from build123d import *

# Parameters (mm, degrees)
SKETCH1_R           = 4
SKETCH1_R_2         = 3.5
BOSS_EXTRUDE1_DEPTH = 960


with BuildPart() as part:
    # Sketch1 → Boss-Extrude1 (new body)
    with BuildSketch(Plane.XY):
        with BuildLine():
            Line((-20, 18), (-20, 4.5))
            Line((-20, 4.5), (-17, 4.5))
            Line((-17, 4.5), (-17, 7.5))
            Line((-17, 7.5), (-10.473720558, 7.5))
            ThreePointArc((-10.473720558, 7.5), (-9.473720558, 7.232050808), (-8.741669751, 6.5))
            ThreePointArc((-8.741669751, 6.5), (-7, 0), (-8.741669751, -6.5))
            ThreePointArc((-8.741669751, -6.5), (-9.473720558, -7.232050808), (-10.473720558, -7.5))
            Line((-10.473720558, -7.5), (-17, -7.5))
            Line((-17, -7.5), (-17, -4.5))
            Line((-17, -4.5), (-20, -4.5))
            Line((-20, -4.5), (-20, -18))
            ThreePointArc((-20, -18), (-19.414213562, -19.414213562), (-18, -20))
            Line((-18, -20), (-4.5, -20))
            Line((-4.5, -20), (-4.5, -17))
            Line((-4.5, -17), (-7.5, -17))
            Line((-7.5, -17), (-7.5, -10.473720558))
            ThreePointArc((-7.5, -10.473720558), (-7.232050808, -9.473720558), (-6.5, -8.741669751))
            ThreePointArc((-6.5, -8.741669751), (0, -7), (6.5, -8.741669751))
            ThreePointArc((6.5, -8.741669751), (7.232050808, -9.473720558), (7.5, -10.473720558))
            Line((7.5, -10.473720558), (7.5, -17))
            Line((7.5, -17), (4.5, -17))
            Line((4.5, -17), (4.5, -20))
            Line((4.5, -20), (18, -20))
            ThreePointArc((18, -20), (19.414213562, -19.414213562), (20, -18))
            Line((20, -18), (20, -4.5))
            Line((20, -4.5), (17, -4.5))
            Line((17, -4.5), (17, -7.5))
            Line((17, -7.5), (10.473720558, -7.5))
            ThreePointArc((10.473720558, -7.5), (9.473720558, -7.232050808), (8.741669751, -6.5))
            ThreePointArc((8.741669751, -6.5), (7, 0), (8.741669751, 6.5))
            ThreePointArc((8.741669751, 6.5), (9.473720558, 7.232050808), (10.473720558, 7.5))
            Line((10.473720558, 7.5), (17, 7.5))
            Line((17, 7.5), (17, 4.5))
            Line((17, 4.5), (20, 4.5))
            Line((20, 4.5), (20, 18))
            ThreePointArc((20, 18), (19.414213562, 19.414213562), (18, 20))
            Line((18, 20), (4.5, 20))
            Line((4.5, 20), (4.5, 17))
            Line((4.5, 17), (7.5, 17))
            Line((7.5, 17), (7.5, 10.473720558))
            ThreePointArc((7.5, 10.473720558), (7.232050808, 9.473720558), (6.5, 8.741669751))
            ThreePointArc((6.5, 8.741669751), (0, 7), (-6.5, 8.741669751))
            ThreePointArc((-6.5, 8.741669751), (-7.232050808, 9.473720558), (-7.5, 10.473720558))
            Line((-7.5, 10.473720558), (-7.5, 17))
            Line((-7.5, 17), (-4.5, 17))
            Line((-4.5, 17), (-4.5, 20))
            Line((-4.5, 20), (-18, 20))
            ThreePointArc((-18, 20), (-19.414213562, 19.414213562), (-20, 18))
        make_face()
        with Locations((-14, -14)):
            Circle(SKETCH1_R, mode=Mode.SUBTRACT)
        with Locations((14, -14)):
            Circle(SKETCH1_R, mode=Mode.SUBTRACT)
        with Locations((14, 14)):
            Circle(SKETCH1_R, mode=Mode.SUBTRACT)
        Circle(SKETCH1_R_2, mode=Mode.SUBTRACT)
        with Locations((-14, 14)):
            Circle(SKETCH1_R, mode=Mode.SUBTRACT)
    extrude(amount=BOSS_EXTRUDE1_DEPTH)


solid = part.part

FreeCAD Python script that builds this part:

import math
import FreeCAD as App
import Part
import Sketcher
Q = App.Units.Quantity

doc = App.newDocument("Part")
body = doc.addObject("PartDesign::Body", "Body")

# Sketch on XY plane
sketch1 = body.newObject("Sketcher::SketchObject", "Sketch")
sketch1.AttachmentSupport = (doc.getObject("XY_Plane"), [""])
sketch1.MapMode = "FlatFace"
sketch1.addGeometry([
    Part.LineSegment(App.Vector(-20, 18, 0), App.Vector(-20, 4.5, 0)),  # 0
    Part.LineSegment(App.Vector(-20, 4.5, 0), App.Vector(-17, 4.5, 0)),  # 1
    Part.LineSegment(App.Vector(-17, 4.5, 0), App.Vector(-17, 7.5, 0)),  # 2
    Part.LineSegment(App.Vector(-17, 7.5, 0), App.Vector(-10.5, 7.5, 0)),  # 3
    Part.ArcOfCircle(Part.Circle(App.Vector(-10.5, 5.5, 0), App.Vector(0, 0, 1), 2), math.radians(30), math.radians(90)),  # 4
    Part.ArcOfCircle(Part.Circle(App.Vector(-20, 0, 0), App.Vector(0, 0, 1), 13), math.radians(-30), math.radians(30)),  # 5
    Part.ArcOfCircle(Part.Circle(App.Vector(-10.5, -5.5, 0), App.Vector(0, 0, 1), 2), math.radians(-90), math.radians(-30)),  # 6
    Part.LineSegment(App.Vector(-10.5, -7.5, 0), App.Vector(-17, -7.5, 0)),  # 7
    Part.LineSegment(App.Vector(-17, -7.5, 0), App.Vector(-17, -4.5, 0)),  # 8
    Part.LineSegment(App.Vector(-17, -4.5, 0), App.Vector(-20, -4.5, 0)),  # 9
    Part.LineSegment(App.Vector(-20, -4.5, 0), App.Vector(-20, -18, 0)),  # 10
    Part.ArcOfCircle(Part.Circle(App.Vector(-18, -18, 0), App.Vector(0, 0, 1), 2), math.radians(-180), math.radians(-90)),  # 11
    Part.LineSegment(App.Vector(-18, -20, 0), App.Vector(-4.5, -20, 0)),  # 12
    Part.LineSegment(App.Vector(-4.5, -20, 0), App.Vector(-4.5, -17, 0)),  # 13
    Part.LineSegment(App.Vector(-4.5, -17, 0), App.Vector(-7.5, -17, 0)),  # 14
    Part.LineSegment(App.Vector(-7.5, -17, 0), App.Vector(-7.5, -10.5, 0)),  # 15
    Part.ArcOfCircle(Part.Circle(App.Vector(-5.5, -10.5, 0), App.Vector(0, 0, 1), 2), math.radians(120), math.radians(180)),  # 16
    Part.ArcOfCircle(Part.Circle(App.Vector(0, -20, 0), App.Vector(0, 0, 1), 13), math.radians(60), math.radians(120)),  # 17
    Part.ArcOfCircle(Part.Circle(App.Vector(5.5, -10.5, 0), App.Vector(0, 0, 1), 2), math.radians(0), math.radians(60)),  # 18
    Part.LineSegment(App.Vector(7.5, -10.5, 0), App.Vector(7.5, -17, 0)),  # 19
    Part.LineSegment(App.Vector(7.5, -17, 0), App.Vector(4.5, -17, 0)),  # 20
    Part.LineSegment(App.Vector(4.5, -17, 0), App.Vector(4.5, -20, 0)),  # 21
    Part.LineSegment(App.Vector(4.5, -20, 0), App.Vector(18, -20, 0)),  # 22
    Part.ArcOfCircle(Part.Circle(App.Vector(18, -18, 0), App.Vector(0, 0, 1), 2), math.radians(-90), math.radians(0)),  # 23
    Part.LineSegment(App.Vector(20, -18, 0), App.Vector(20, -4.5, 0)),  # 24
    Part.LineSegment(App.Vector(20, -4.5, 0), App.Vector(17, -4.5, 0)),  # 25
    Part.LineSegment(App.Vector(17, -4.5, 0), App.Vector(17, -7.5, 0)),  # 26
    Part.LineSegment(App.Vector(17, -7.5, 0), App.Vector(10.5, -7.5, 0)),  # 27
    Part.ArcOfCircle(Part.Circle(App.Vector(10.5, -5.5, 0), App.Vector(0, 0, 1), 2), math.radians(-150), math.radians(-90)),  # 28
    Part.ArcOfCircle(Part.Circle(App.Vector(20, 0, 0), App.Vector(0, 0, 1), 13), math.radians(150), math.radians(210)),  # 29
    Part.ArcOfCircle(Part.Circle(App.Vector(10.5, 5.5, 0), App.Vector(0, 0, 1), 2), math.radians(90), math.radians(150)),  # 30
    Part.LineSegment(App.Vector(10.5, 7.5, 0), App.Vector(17, 7.5, 0)),  # 31
    Part.LineSegment(App.Vector(17, 7.5, 0), App.Vector(17, 4.5, 0)),  # 32
    Part.LineSegment(App.Vector(17, 4.5, 0), App.Vector(20, 4.5, 0)),  # 33
    Part.LineSegment(App.Vector(20, 4.5, 0), App.Vector(20, 18, 0)),  # 34
    Part.ArcOfCircle(Part.Circle(App.Vector(18, 18, 0), App.Vector(0, 0, 1), 2), math.radians(0), math.radians(90)),  # 35
    Part.LineSegment(App.Vector(18, 20, 0), App.Vector(4.5, 20, 0)),  # 36
    Part.LineSegment(App.Vector(4.5, 20, 0), App.Vector(4.5, 17, 0)),  # 37
    Part.LineSegment(App.Vector(4.5, 17, 0), App.Vector(7.5, 17, 0)),  # 38
    Part.LineSegment(App.Vector(7.5, 17, 0), App.Vector(7.5, 10.5, 0)),  # 39
    Part.ArcOfCircle(Part.Circle(App.Vector(5.5, 10.5, 0), App.Vector(0, 0, 1), 2), math.radians(-60), math.radians(0)),  # 40
    Part.ArcOfCircle(Part.Circle(App.Vector(0, 20, 0), App.Vector(0, 0, 1), 13), math.radians(-120), math.radians(-60)),  # 41
    Part.ArcOfCircle(Part.Circle(App.Vector(-5.5, 10.5, 0), App.Vector(0, 0, 1), 2), math.radians(180), math.radians(240)),  # 42
    Part.LineSegment(App.Vector(-7.5, 10.5, 0), App.Vector(-7.5, 17, 0)),  # 43
    Part.LineSegment(App.Vector(-7.5, 17, 0), App.Vector(-4.5, 17, 0)),  # 44
    Part.LineSegment(App.Vector(-4.5, 17, 0), App.Vector(-4.5, 20, 0)),  # 45
    Part.LineSegment(App.Vector(-4.5, 20, 0), App.Vector(-18, 20, 0)),  # 46
    Part.ArcOfCircle(Part.Circle(App.Vector(-18, 18, 0), App.Vector(0, 0, 1), 2), math.radians(90), math.radians(180)),  # 47
    Part.Circle(App.Vector(-14, -14, 0), App.Vector(0, 0, 1), 4),  # 48
    Part.Circle(App.Vector(14, -14, 0), App.Vector(0, 0, 1), 4),  # 49
    Part.Circle(App.Vector(-14, 14, 0), App.Vector(0, 0, 1), 4),  # 50
    Part.Circle(App.Vector(0, 0, 0), App.Vector(0, 0, 1), 3.5),  # 51
    Part.Circle(App.Vector(14, 14, 0), App.Vector(0, 0, 1), 4),  # 52
], False)
sketch1.addConstraint([
    Sketcher.Constraint("Coincident", 0, 2, 1, 1),
    Sketcher.Constraint("Coincident", 1, 2, 2, 1),
    Sketcher.Constraint("Coincident", 2, 2, 3, 1),
    Sketcher.Constraint("Tangent", 3, 2, 4, 2),
    Sketcher.Constraint("Tangent", 4, 1, 5, 2),
    Sketcher.Constraint("Tangent", 5, 1, 6, 2),
    Sketcher.Constraint("Tangent", 6, 1, 7, 1),
    Sketcher.Constraint("Coincident", 7, 2, 8, 1),
    Sketcher.Constraint("Coincident", 8, 2, 9, 1),
    Sketcher.Constraint("Coincident", 9, 2, 10, 1),
    Sketcher.Constraint("Tangent", 10, 2, 11, 1),
    Sketcher.Constraint("Tangent", 11, 2, 12, 1),
    Sketcher.Constraint("Coincident", 12, 2, 13, 1),
    Sketcher.Constraint("Coincident", 13, 2, 14, 1),
    Sketcher.Constraint("Coincident", 14, 2, 15, 1),
    Sketcher.Constraint("Tangent", 15, 2, 16, 2),
    Sketcher.Constraint("Tangent", 16, 1, 17, 2),
    Sketcher.Constraint("Tangent", 17, 1, 18, 2),
    Sketcher.Constraint("Tangent", 18, 1, 19, 1),
    Sketcher.Constraint("Coincident", 19, 2, 20, 1),
    Sketcher.Constraint("Coincident", 20, 2, 21, 1),
    Sketcher.Constraint("Coincident", 21, 2, 22, 1),
    Sketcher.Constraint("Tangent", 22, 2, 23, 1),
    Sketcher.Constraint("Tangent", 23, 2, 24, 1),
    Sketcher.Constraint("Coincident", 24, 2, 25, 1),
    Sketcher.Constraint("Coincident", 25, 2, 26, 1),
    Sketcher.Constraint("Coincident", 26, 2, 27, 1),
    Sketcher.Constraint("Tangent", 27, 2, 28, 2),
    Sketcher.Constraint("Tangent", 28, 1, 29, 2),
    Sketcher.Constraint("Tangent", 29, 1, 30, 2),
    Sketcher.Constraint("Tangent", 30, 1, 31, 1),
    Sketcher.Constraint("Coincident", 31, 2, 32, 1),
    Sketcher.Constraint("Coincident", 32, 2, 33, 1),
    Sketcher.Constraint("Coincident", 33, 2, 34, 1),
    Sketcher.Constraint("Tangent", 34, 2, 35, 1),
    Sketcher.Constraint("Tangent", 35, 2, 36, 1),
    Sketcher.Constraint("Coincident", 36, 2, 37, 1),
    Sketcher.Constraint("Coincident", 37, 2, 38, 1),
    Sketcher.Constraint("Coincident", 38, 2, 39, 1),
    Sketcher.Constraint("Tangent", 39, 2, 40, 2),
    Sketcher.Constraint("Tangent", 40, 1, 41, 2),
    Sketcher.Constraint("Tangent", 41, 1, 42, 2),
    Sketcher.Constraint("Tangent", 42, 1, 43, 1),
    Sketcher.Constraint("Coincident", 43, 2, 44, 1),
    Sketcher.Constraint("Coincident", 44, 2, 45, 1),
    Sketcher.Constraint("Coincident", 45, 2, 46, 1),
    Sketcher.Constraint("Tangent", 46, 2, 47, 1),
    Sketcher.Constraint("Tangent", 47, 2, 0, 1),
    Sketcher.Constraint("Vertical", 0),
    Sketcher.Constraint("Horizontal", 1),
    Sketcher.Constraint("Vertical", 2),
    Sketcher.Constraint("Horizontal", 3),
    Sketcher.Constraint("Horizontal", 7),
    Sketcher.Constraint("Vertical", 8),
    Sketcher.Constraint("Horizontal", 9),
    Sketcher.Constraint("Vertical", 10),
    Sketcher.Constraint("Horizontal", 12),
    Sketcher.Constraint("Vertical", 13),
    Sketcher.Constraint("Horizontal", 14),
    Sketcher.Constraint("Vertical", 15),
    Sketcher.Constraint("Vertical", 19),
    Sketcher.Constraint("Horizontal", 20),
    Sketcher.Constraint("Vertical", 21),
    Sketcher.Constraint("Horizontal", 22),
    Sketcher.Constraint("Vertical", 24),
    Sketcher.Constraint("Horizontal", 25),
    Sketcher.Constraint("Vertical", 26),
    Sketcher.Constraint("Horizontal", 27),
    Sketcher.Constraint("Horizontal", 31),
    Sketcher.Constraint("Vertical", 32),
    Sketcher.Constraint("Horizontal", 33),
    Sketcher.Constraint("Vertical", 34),
    Sketcher.Constraint("Horizontal", 36),
    Sketcher.Constraint("Vertical", 37),
    Sketcher.Constraint("Horizontal", 38),
    Sketcher.Constraint("Vertical", 39),
    Sketcher.Constraint("Vertical", 43),
    Sketcher.Constraint("Horizontal", 44),
    Sketcher.Constraint("Vertical", 45),
    Sketcher.Constraint("Horizontal", 46),
    Sketcher.Constraint("Coincident", 51, 3, -1, 1),
    Sketcher.Constraint("Equal", 4, 6),
    Sketcher.Constraint("Equal", 6, 11),
    Sketcher.Constraint("Equal", 11, 16),
    Sketcher.Constraint("Equal", 5, 17),
    Sketcher.Constraint("Equal", 16, 18),
    Sketcher.Constraint("Equal", 18, 23),
    Sketcher.Constraint("Equal", 23, 28),
    Sketcher.Constraint("Equal", 17, 29),
    Sketcher.Constraint("Equal", 28, 30),
    Sketcher.Constraint("Equal", 30, 35),
    Sketcher.Constraint("Equal", 35, 40),
    Sketcher.Constraint("Equal", 29, 41),
    Sketcher.Constraint("Equal", 40, 42),
    Sketcher.Constraint("Equal", 42, 47),
    Sketcher.Constraint("Equal", 48, 49),
    Sketcher.Constraint("Equal", 49, 50),
    Sketcher.Constraint("Equal", 50, 52),
    Sketcher.Constraint("Symmetric", 4, 3, 28, 3, -1, 1),
    Sketcher.Constraint("Symmetric", 6, 3, 30, 3, -1, 1),
    Sketcher.Constraint("Symmetric", 11, 3, 35, 3, -1, 1),
    Sketcher.Constraint("Symmetric", 16, 3, 40, 3, -1, 1),
    Sketcher.Constraint("Symmetric", 18, 3, 42, 3, -1, 1),
    Sketcher.Constraint("Symmetric", 23, 3, 47, 3, -1, 1),
    Sketcher.Constraint("Symmetric", 49, 3, 50, 3, -1, 1),
    Sketcher.Constraint("Symmetric", 48, 3, 52, 3, -1, 1),
    Sketcher.Constraint("Symmetric", 1, 2, 25, 2, -1, 1),
    Sketcher.Constraint("Symmetric", 8, 2, 32, 2, -1, 1),
    Sketcher.Constraint("Symmetric", 13, 2, 37, 2, -1, 1),
    Sketcher.Constraint("Symmetric", 20, 2, 44, 2, -1, 1),
    Sketcher.Constraint("Symmetric", 16, 3, 18, 3, -2),
    Sketcher.Constraint("Symmetric", 11, 3, 23, 3, -2),
    Sketcher.Constraint("Symmetric", 6, 3, 28, 3, -2),
    Sketcher.Constraint("Symmetric", 48, 3, 49, 3, -2),
    Sketcher.Constraint("Symmetric", 13, 2, 20, 2, -2),
    Sketcher.Constraint("Symmetric", 8, 2, 25, 2, -2),
    Sketcher.Constraint("Horizontal", 17, 3, 11, 2),
    Sketcher.Constraint("Vertical", 5, 3, 0, 2),
    Sketcher.Constraint("Equal", 9, 14),
    Sketcher.Constraint("Equal", 46, 0),
    Sketcher.Constraint("Equal", 44, 2),
    Sketcher.Constraint("Equal", 8, 13),
    Sketcher.Constraint("Equal", 31, 15),
    Sketcher.Constraint("Diameter", 48, Q("8 mm")),
    Sketcher.Constraint("Diameter", 51, Q("7 mm")),
    Sketcher.Constraint("Radius", 4, Q("2 mm")),
    Sketcher.Constraint("Radius", 5, Q("13 mm")),
    Sketcher.Constraint("DistanceX", 1, 1, 1, 2, Q("3 mm")),
    Sketcher.Constraint("DistanceX", 12, 1, 12, 2, Q("13.5 mm")),
    Sketcher.Constraint("DistanceX", 5, 3, -1, 1, Q("20 mm")),
    Sketcher.Constraint("DistanceX", 48, 3, -1, 1, Q("14 mm")),
    Sketcher.Constraint("DistanceY", 48, 3, -1, 1, Q("14 mm")),
])
pad1 = body.newObject("PartDesign::Pad", "Pad")
pad1.Profile = sketch1
pad1.Length = 960

doc.recompute()
